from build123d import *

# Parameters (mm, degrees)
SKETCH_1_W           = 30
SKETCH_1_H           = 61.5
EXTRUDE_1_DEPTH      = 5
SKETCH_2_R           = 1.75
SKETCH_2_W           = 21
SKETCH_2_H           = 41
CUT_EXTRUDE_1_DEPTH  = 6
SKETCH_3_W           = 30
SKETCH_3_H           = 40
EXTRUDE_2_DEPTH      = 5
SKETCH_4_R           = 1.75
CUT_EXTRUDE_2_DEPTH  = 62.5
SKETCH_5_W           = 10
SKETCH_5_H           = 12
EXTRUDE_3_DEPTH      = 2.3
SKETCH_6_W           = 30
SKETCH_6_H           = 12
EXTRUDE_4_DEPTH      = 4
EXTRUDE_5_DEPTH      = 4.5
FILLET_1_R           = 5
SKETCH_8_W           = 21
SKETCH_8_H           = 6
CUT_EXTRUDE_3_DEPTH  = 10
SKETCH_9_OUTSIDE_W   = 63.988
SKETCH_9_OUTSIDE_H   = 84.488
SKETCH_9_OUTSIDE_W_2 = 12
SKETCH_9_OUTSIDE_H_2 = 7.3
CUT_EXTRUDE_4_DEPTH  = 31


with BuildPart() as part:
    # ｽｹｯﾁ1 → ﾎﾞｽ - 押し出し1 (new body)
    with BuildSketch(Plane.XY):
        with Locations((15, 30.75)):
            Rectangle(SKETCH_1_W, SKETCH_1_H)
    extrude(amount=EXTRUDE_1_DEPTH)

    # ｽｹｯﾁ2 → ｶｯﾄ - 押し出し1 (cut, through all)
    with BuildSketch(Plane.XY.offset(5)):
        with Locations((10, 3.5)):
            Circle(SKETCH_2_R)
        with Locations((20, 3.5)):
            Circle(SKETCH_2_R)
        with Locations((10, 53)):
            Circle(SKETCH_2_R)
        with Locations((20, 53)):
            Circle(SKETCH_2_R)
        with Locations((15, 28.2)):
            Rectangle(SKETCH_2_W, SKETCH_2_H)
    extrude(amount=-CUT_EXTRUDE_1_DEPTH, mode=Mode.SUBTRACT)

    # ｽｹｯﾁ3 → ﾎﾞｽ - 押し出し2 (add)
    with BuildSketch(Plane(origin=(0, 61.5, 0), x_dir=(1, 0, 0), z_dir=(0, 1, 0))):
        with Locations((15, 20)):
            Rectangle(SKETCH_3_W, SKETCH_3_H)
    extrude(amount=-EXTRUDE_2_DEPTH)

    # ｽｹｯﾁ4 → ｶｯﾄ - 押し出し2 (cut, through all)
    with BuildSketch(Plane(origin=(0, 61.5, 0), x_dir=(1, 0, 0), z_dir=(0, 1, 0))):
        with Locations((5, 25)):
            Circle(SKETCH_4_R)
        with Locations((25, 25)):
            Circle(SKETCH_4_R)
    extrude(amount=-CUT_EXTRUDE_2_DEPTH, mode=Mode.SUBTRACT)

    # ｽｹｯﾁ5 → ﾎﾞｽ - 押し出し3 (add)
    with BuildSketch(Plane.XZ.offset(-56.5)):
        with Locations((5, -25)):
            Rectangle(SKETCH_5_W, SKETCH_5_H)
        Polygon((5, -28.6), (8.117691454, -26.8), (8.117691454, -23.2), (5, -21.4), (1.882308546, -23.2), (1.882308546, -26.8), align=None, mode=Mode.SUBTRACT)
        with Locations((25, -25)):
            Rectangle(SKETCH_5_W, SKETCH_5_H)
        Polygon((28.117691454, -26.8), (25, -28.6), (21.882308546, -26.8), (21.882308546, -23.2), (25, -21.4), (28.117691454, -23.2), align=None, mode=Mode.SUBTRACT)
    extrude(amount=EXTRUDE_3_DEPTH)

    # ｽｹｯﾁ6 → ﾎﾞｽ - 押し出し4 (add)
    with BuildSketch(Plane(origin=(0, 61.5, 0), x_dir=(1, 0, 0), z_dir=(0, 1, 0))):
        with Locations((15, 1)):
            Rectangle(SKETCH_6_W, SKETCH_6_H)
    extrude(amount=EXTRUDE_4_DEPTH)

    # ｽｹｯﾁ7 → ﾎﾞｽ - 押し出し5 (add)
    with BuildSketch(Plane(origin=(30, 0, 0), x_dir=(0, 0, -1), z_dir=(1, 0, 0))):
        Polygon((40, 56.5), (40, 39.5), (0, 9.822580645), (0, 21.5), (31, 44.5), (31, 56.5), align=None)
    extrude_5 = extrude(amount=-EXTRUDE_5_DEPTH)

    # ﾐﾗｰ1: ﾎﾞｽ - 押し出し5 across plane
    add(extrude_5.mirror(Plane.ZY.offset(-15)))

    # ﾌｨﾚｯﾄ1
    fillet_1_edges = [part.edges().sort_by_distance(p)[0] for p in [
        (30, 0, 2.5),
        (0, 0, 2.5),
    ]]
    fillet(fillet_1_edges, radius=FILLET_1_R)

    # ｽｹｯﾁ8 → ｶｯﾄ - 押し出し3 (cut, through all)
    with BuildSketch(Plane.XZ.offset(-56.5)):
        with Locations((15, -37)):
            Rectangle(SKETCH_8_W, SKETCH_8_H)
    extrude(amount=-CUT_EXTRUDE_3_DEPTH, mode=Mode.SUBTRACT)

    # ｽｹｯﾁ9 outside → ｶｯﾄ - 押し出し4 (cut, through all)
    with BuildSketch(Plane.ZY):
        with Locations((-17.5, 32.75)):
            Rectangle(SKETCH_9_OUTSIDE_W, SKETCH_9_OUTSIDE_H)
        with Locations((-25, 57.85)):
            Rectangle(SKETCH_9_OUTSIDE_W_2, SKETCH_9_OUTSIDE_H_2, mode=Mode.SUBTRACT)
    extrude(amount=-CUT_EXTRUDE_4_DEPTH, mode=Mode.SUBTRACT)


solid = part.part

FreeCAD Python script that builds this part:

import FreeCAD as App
import Part
import Sketcher

V = App.Vector
Q = App.Units.Quantity


def edges_at(feature, points):
    """Names of the edges that pass closest to the given points."""
    edges = feature.Shape.Edges
    near = lambda p: min(range(len(edges)), key=lambda i: edges[i].distToShape(Part.Vertex(*p))[0])
    return sorted({f"Edge{near(p) + 1}" for p in points})


def add_polygon(sketch, points):
    """Adds a closed chain of lines whose ends are joined by coincident constraints."""
    first, n = sketch.GeometryCount, len(points)
    for a, b in zip(points, points[1:] + points[:1]):
        sketch.addGeometry(Part.LineSegment(App.Vector(*a, 0), App.Vector(*b, 0)), False)
    for i in range(n):
        sketch.addConstraint(Sketcher.Constraint("Coincident", first + i, 2, first + (i + 1) % n, 1))

doc = App.newDocument("Part")
params = doc.addObject("Spreadsheet::Sheet", "Params")
for row, (alias, value) in enumerate([
    ("sketch1_width", "30 mm"),
    ("sketch1_height", "61.5 mm"),
    ("pad1_length", "5 mm"),
    ("sketch2_diameter", "3.5 mm"),
    ("sketch2_width", "21 mm"),
    ("sketch2_height", "41 mm"),
    ("sketch3_width", "30 mm"),
    ("sketch3_height", "40 mm"),
    ("pad2_length", "5 mm"),
    ("sketch4_diameter", "3.5 mm"),
    ("sketch5_width", "10 mm"),
    ("sketch5_height", "12 mm"),
    ("sketch5_height2", "3.6 mm"),
    ("sketch5_length", "3.6 mm"),
    ("pad3_length", "2.3 mm"),
    ("sketch6_width", "30 mm"),
    ("sketch6_height", "12 mm"),
    ("pad4_length", "4 mm"),
    ("sketch7_width", "17 mm"),
    ("sketch7_width2", "12 mm"),
    ("sketch7_height", "9 mm"),
    ("pad5_length", "4.5 mm"),
    ("fillet_radius", "5 mm"),
    ("sketch8_width", "21 mm"),
    ("sketch8_height", "6 mm"),
    ("sketch9_height", "12 mm"),
    ("sketch9_width", "7.3 mm"),
], start=1):
    params.set(f"A{row}", alias)
    params.set(f"B{row}", "=" + value)
    params.setAlias(f"B{row}", alias)

body = doc.addObject("PartDesign::Body", "Body")

# Sketch on XY plane
sketch1 = body.newObject("Sketcher::SketchObject", "Sketch")
sketch1.AttachmentSupport = (doc.getObject("XY_Plane"), [""])
sketch1.MapMode = "FlatFace"
add_polygon(sketch1, [(0, 62), (0, 0), (30, 0), (30, 62)])  # lines 0-3
sketch1.addConstraint(Sketcher.Constraint("Vertical", 0))
sketch1.addConstraint(Sketcher.Constraint("Horizontal", 1))
sketch1.addConstraint(Sketcher.Constraint("Vertical", 2))
sketch1.addConstraint(Sketcher.Constraint("Horizontal", 3))
sketch1.addConstraint(Sketcher.Constraint("Coincident", 0, 2, -1, 1))
sketch1.addConstraint(Sketcher.Constraint("DistanceX", 1, 1, 1, 2, Q("30 mm")))
sketch1.addConstraint(Sketcher.Constraint("DistanceY", 0, 2, 0, 1, Q("61.5 mm")))
sketch1.setExpression("Constraints[9]", "Params.sketch1_width")
sketch1.setExpression("Constraints[10]", "Params.sketch1_height")
pad1 = body.newObject("PartDesign::Pad", "Pad")
pad1.Profile = sketch1
pad1.setExpression("Length", "Params.pad1_length")

# Sketch on XY plane
sketch2 = body.newObject("Sketcher::SketchObject", "Sketch001")
sketch2.AttachmentSupport = (doc.getObject("XY_Plane"), [""])
sketch2.MapMode = "FlatFace"
sketch2.AttachmentOffset = App.Placement(V(0, 0, 5), App.Rotation())
sketch2.addGeometry(Part.Circle(V(10, 3.5, 0), V(0, 0, 1), 1.8), False)  # 0
sketch2.addGeometry(Part.Circle(V(20, 3.5, 0), V(0, 0, 1), 1.8), False)  # 1
sketch2.addGeometry(Part.Circle(V(10, 53, 0), V(0, 0, 1), 1.8), False)  # 2
sketch2.addGeometry(Part.Circle(V(20, 53, 0), V(0, 0, 1), 1.8), False)  # 3
add_polygon(sketch2, [(4.5, 48.7), (4.5, 7.7), (25.5, 7.7), (25.5, 48.7)])  # lines 4-7
sketch2.addConstraint(Sketcher.Constraint("Vertical", 4))
sketch2.addConstraint(Sketcher.Constraint("Horizontal", 5))
sketch2.addConstraint(Sketcher.Constraint("Vertical", 6))
sketch2.addConstraint(Sketcher.Constraint("Horizontal", 7))
sketch2.addConstraint(Sketcher.Constraint("Equal", 0, 1))
sketch2.addConstraint(Sketcher.Constraint("Equal", 1, 2))
sketch2.addConstraint(Sketcher.Constraint("Equal", 2, 3))
sketch2.addConstraint(Sketcher.Constraint("Horizontal", 0, 3, 1, 3))
sketch2.addConstraint(Sketcher.Constraint("Horizontal", 2, 3, 3, 3))
sketch2.addConstraint(Sketcher.Constraint("Vertical", 0, 3, 2, 3))
sketch2.addConstraint(Sketcher.Constraint("Vertical", 1, 3, 3, 3))
sketch2.addConstraint(Sketcher.Constraint("Diameter", 0, Q("3.5 mm")))
sketch2.addConstraint(Sketcher.Constraint("DistanceX", 5, 1, 5, 2, Q("21 mm")))
sketch2.addConstraint(Sketcher.Constraint("DistanceY", 4, 2, 4, 1, Q("41 mm")))
sketch2.addConstraint(Sketcher.Constraint("DistanceX", -1, 1, 0, 3, Q("10 mm")))
sketch2.addConstraint(Sketcher.Constraint("DistanceX", -1, 1, 1, 3, Q("20 mm")))
sketch2.addConstraint(Sketcher.Constraint("DistanceY", -1, 1, 2, 3, Q("53 mm")))
sketch2.addConstraint(Sketcher.Constraint("DistanceY", -1, 1, 0, 3, Q("3.5 mm")))
sketch2.addConstraint(Sketcher.Constraint("DistanceX", -1, 1, 4, 2, Q("4.5 mm")))
sketch2.addConstraint(Sketcher.Constraint("DistanceY", -1, 1, 4, 2, Q("7.7 mm")))
sketch2.setExpression("Constraints[15]", "Params.sketch2_diameter")
sketch2.setExpression("Constraints[16]", "Params.sketch2_width")
sketch2.setExpression("Constraints[17]", "Params.sketch2_height")
pocket1 = body.newObject("PartDesign::Pocket", "Pocket")
pocket1.Profile = sketch2
pocket1.Type = "ThroughAll"

# Sketch on XZ plane
sketch3 = body.newObject("Sketcher::SketchObject", "Sketch002")
sketch3.AttachmentSupport = (doc.getObject("XZ_Plane"), [""])
sketch3.MapMode = "FlatFace"
sketch3.AttachmentOffset = App.Placement(V(0, 0, -61.5), App.Rotation())
add_polygon(sketch3, [(0, -40), (0, 0), (30, 0), (30, -40)])  # lines 0-3
sketch3.addConstraint(Sketcher.Constraint("Vertical", 0))
sketch3.addConstraint(Sketcher.Constraint("Horizontal", 1))
sketch3.addConstraint(Sketcher.Constraint("Vertical", 2))
sketch3.addConstraint(Sketcher.Constraint("Horizontal", 3))
sketch3.addConstraint(Sketcher.Constraint("Coincident", 0, 2, -1, 1))
sketch3.addConstraint(Sketcher.Constraint("DistanceX", 1, 1, 1, 2, Q("30 mm")))
sketch3.addConstraint(Sketcher.Constraint("DistanceY", 0, 1, 0, 2, Q("40 mm")))
sketch3.setExpression("Constraints[9]", "Params.sketch3_width")
sketch3.setExpression("Constraints[10]", "Params.sketch3_height")
pad2 = body.newObject("PartDesign::Pad", "Pad001")
pad2.Profile = sketch3
pad2.setExpression("Length", "Params.pad2_length")

# Sketch on XZ plane
sketch4 = body.newObject("Sketcher::SketchObject", "Sketch003")
sketch4.AttachmentSupport = (doc.getObject("XZ_Plane"), [""])
sketch4.MapMode = "FlatFace"
sketch4.AttachmentOffset = App.Placement(V(0, 0, -61.5), App.Rotation())
sketch4.addGeometry(Part.Circle(V(5, -25, 0), V(0, 0, 1), 1.8), False)
sketch4.addGeometry(Part.Circle(V(25, -25, 0), V(0, 0, 1), 1.8), False)
sketch4.addConstraint(Sketcher.Constraint("Equal", 0, 1))
sketch4.addConstraint(Sketcher.Constraint("Horizontal", 0, 3, 1, 3))
sketch4.addConstraint(Sketcher.Constraint("Diameter", 0, Q("3.5 mm")))
sketch4.addConstraint(Sketcher.Constraint("DistanceX", -1, 1, 0, 3, Q("5 mm")))
sketch4.addConstraint(Sketcher.Constraint("DistanceY", 0, 3, -1, 1, Q("25 mm")))
sketch4.addConstraint(Sketcher.Constraint("DistanceX", -1, 1, 1, 3, Q("25 mm")))
sketch4.setExpression("Constraints[2]", "Params.sketch4_diameter")
pocket2 = body.newObject("PartDesign::Pocket", "Pocket001")
pocket2.Profile = sketch4
pocket2.Type = "ThroughAll"
pocket2.Reversed = True

# Sketch on XZ plane
sketch5 = body.newObject("Sketcher::SketchObject", "Sketch004")
sketch5.AttachmentSupport = (doc.getObject("XZ_Plane"), [""])
sketch5.MapMode = "FlatFace"
sketch5.AttachmentOffset = App.Placement(V(0, 0, -56.5), App.Rotation())
add_polygon(sketch5, [(0, -19), (0, -31), (10, -31), (10, -19)])  # lines 0-3
add_polygon(sketch5, [(8.1, -26.8), (5, -28.6), (1.9, -26.8), (1.9, -23.2), (5, -21.4), (8.1, -23.2)])  # lines 4-9
add_polygon(sketch5, [(20, -19), (20, -31), (30, -31), (30, -19)])  # lines 10-13
add_polygon(sketch5, [(28.1, -23.2), (28.1, -26.8), (25, -28.6), (21.9, -26.8), (21.9, -23.2), (25, -21.4)])  # lines 14-19
sketch5.addConstraint(Sketcher.Constraint("Vertical", 0))
sketch5.addConstraint(Sketcher.Constraint("Horizontal", 1))
sketch5.addConstraint(Sketcher.Constraint("Vertical", 2))
sketch5.addConstraint(Sketcher.Constraint("Horizontal", 3))
sketch5.addConstraint(Sketcher.Constraint("Vertical", 6))
sketch5.addConstraint(Sketcher.Constraint("Vertical", 9))
sketch5.addConstraint(Sketcher.Constraint("Vertical", 10))
sketch5.addConstraint(Sketcher.Constraint("Horizontal", 11))
sketch5.addConstraint(Sketcher.Constraint("Vertical", 12))
sketch5.addConstraint(Sketcher.Constraint("Horizontal", 13))
sketch5.addConstraint(Sketcher.Constraint("Vertical", 14))
sketch5.addConstraint(Sketcher.Constraint("Vertical", 17))
sketch5.addConstraint(Sketcher.Constraint("PointOnObject", 0, 2, -2))
sketch5.addConstraint(Sketcher.Constraint("Parallel", 4, 7))
sketch5.addConstraint(Sketcher.Constraint("Parallel", 5, 8))
sketch5.addConstraint(Sketcher.Constraint("Parallel", 7, 15))
sketch5.addConstraint(Sketcher.Constraint("Parallel", 8, 16))
sketch5.addConstraint(Sketcher.Constraint("Parallel", 15, 18))
sketch5.addConstraint(Sketcher.Constraint("Parallel", 16, 19))
sketch5.addConstraint(Sketcher.Constraint("Horizontal", 6, 2, 8, 2))
sketch5.addConstraint(Sketcher.Constraint("Horizontal", 5, 2, 9, 2))
sketch5.addConstraint(Sketcher.Constraint("Horizontal", 1, 2, 10, 2))
sketch5.addConstraint(Sketcher.Constraint("Horizontal", 3, 2, 12, 2))
sketch5.addConstraint(Sketcher.Constraint("Horizontal", 9, 2, 14, 2))
sketch5.addConstraint(Sketcher.Constraint("Horizontal", 4, 2, 15, 2))
sketch5.addConstraint(Sketcher.Constraint("Horizontal", 14, 2, 16, 2))
sketch5.addConstraint(Sketcher.Constraint("Horizontal", 8, 2, 17, 2))
sketch5.addConstraint(Sketcher.Constraint("Horizontal", 7, 2, 18, 2))
sketch5.addConstraint(Sketcher.Constraint("Vertical", 4, 2, 7, 2))
sketch5.addConstraint(Sketcher.Constraint("Equal", 3, 11))
sketch5.addConstraint(Sketcher.Constraint("DistanceX", 1, 1, 1, 2, Q("10 mm")))
sketch5.addConstraint(Sketcher.Constraint("DistanceY", 0, 2, 0, 1, Q("12 mm")))
sketch5.addConstraint(Sketcher.Constraint("Angle", 4, Q("-150 deg")))
sketch5.addConstraint(Sketcher.Constraint("DistanceY", 6, 1, 6, 2, Q("3.6 mm")))
sketch5.addConstraint(Sketcher.Constraint("DistanceY", 0, 2, -1, 1, Q("31 mm")))
sketch5.addConstraint(Sketcher.Constraint("DistanceX", -1, 1, 4, 2, Q("5 mm")))
sketch5.addConstraint(Sketcher.Constraint("DistanceX", -1, 1, 10, 2, Q("20 mm")))
sketch5.addConstraint(Sketcher.Constraint("DistanceX", -1, 1, 15, 2, Q("25 mm")))
sketch5.addConstraint(Sketcher.Constraint("Distance", 4, Q("3.6 mm")))
sketch5.addConstraint(Sketcher.Constraint("DistanceY", 4, 2, -1, 1, Q("28.6 mm")))
sketch5.setExpression("Constraints[50]", "Params.sketch5_width")
sketch5.setExpression("Constraints[51]", "Params.sketch5_height")
sketch5.setExpression("Constraints[53]", "Params.sketch5_height2")
sketch5.setExpression("Constraints[58]", "Params.sketch5_length")
pad3 = body.newObject("PartDesign::Pad", "Pad002")
pad3.Profile = sketch5
pad3.setExpression("Length", "Params.pad3_length")

# Sketch on XZ plane
sketch6 = body.newObject("Sketcher::SketchObject", "Sketch005")
sketch6.AttachmentSupport = (doc.getObject("XZ_Plane"), [""])
sketch6.MapMode = "FlatFace"
sketch6.AttachmentOffset = App.Placement(V(0, 0, -61.5), App.Rotation())
add_polygon(sketch6, [(0, -7), (0, 5), (30, 5), (30, -7)])  # lines 0-3
sketch6.addConstraint(Sketcher.Constraint("Vertical", 0))
sketch6.addConstraint(Sketcher.Constraint("Horizontal", 1))
sketch6.addConstraint(Sketcher.Constraint("Vertical", 2))
sketch6.addConstraint(Sketcher.Constraint("Horizontal", 3))
sketch6.addConstraint(Sketcher.Constraint("PointOnObject", 0, 2, -2))
sketch6.addConstraint(Sketcher.Constraint("DistanceX", 1, 1, 1, 2, Q("30 mm")))
sketch6.addConstraint(Sketcher.Constraint("DistanceY", 0, 1, 0, 2, Q("12 mm")))
sketch6.addConstraint(Sketcher.Constraint("DistanceY", -1, 1, 0, 2, Q("5 mm")))
sketch6.setExpression("Constraints[9]", "Params.sketch6_width")
sketch6.setExpression("Constraints[10]", "Params.sketch6_height")
pad4 = body.newObject("PartDesign::Pad", "Pad003")
pad4.Profile = sketch6
pad4.setExpression("Length", "Params.pad4_length")
pad4.Reversed = True

# Sketch on YZ plane
sketch7 = body.newObject("Sketcher::SketchObject", "Sketch006")
sketch7.AttachmentSupport = (doc.getObject("YZ_Plane"), [""])
sketch7.MapMode = "FlatFace"
sketch7.AttachmentOffset = App.Placement(V(0, 0, 30), App.Rotation())
add_polygon(sketch7, [(40, -40), (56, -40), (56, -31), (44, -31), (22, 0), (10, 0)])  # lines 0-5
sketch7.addConstraint(Sketcher.Constraint("Horizontal", 0))
sketch7.addConstraint(Sketcher.Constraint("Vertical", 1))
sketch7.addConstraint(Sketcher.Constraint("Horizontal", 2))
sketch7.addConstraint(Sketcher.Constraint("Horizontal", 4))
sketch7.addConstraint(Sketcher.Constraint("PointOnObject", 3, 2, -1))
sketch7.addConstraint(Sketcher.Constraint("Parallel", 3, 5))
sketch7.addConstraint(Sketcher.Constraint("DistanceX", 0, 1, 0, 2, Q("17 mm")))
sketch7.addConstraint(Sketcher.Constraint("DistanceX", 2, 2, 2, 1, Q("12 mm")))
sketch7.addConstraint(Sketcher.Constraint("DistanceY", 1, 1, 1, 2, Q("9 mm")))
sketch7.addConstraint(Sketcher.Constraint("DistanceY", 0, 2, -1, 1, Q("40 mm")))
sketch7.addConstraint(Sketcher.Constraint("DistanceX", 3, 2, 2, 2, Q("23 mm")))
sketch7.addConstraint(Sketcher.Constraint("DistanceX", -1, 1, 0, 2, Q("56.5 mm")))
sketch7.setExpression("Constraints[12]", "Params.sketch7_width")
sketch7.setExpression("Constraints[13]", "Params.sketch7_width2")
sketch7.setExpression("Constraints[14]", "Params.sketch7_height")
pad5 = body.newObject("PartDesign::Pad", "Pad004")
pad5.Profile = sketch7
pad5.setExpression("Length", "Params.pad5_length")
pad5.Reversed = True
doc.recompute()

datumplane = body.newObject("PartDesign::Plane", "DatumPlane")
datumplane.AttachmentSupport = (doc.getObject("YZ_Plane"), [""])
datumplane.MapMode = "FlatFace"
datumplane.AttachmentOffset = App.Placement(V(0, 0, 15), App.Rotation())
mirrored = body.newObject("PartDesign::Mirrored", "Mirrored")
mirrored.Originals = [pad5]
mirrored.MirrorPlane = (datumplane, [""])
body.Tip = mirrored
doc.recompute()

fillet = body.newObject("PartDesign::Fillet", "Fillet")
fillet.Base = (mirrored, edges_at(mirrored, [(30, 0, 2.5), (0, 0, 2.5)]))
fillet.setExpression("Radius", "Params.fillet_radius")

# Sketch on XZ plane
sketch8 = body.newObject("Sketcher::SketchObject", "Sketch007")
sketch8.AttachmentSupport = (doc.getObject("XZ_Plane"), [""])
sketch8.MapMode = "FlatFace"
sketch8.AttachmentOffset = App.Placement(V(0, 0, -56.5), App.Rotation())
add_polygon(sketch8, [(4, -34), (4, -40), (26, -40), (26, -34)])  # lines 0-3
sketch8.addConstraint(Sketcher.Constraint("Vertical", 0))
sketch8.addConstraint(Sketcher.Constraint("Horizontal", 1))
sketch8.addConstraint(Sketcher.Constraint("Vertical", 2))
sketch8.addConstraint(Sketcher.Constraint("Horizontal", 3))
sketch8.addConstraint(Sketcher.Constraint("DistanceX", 1, 1, 1, 2, Q("21 mm")))
sketch8.addConstraint(Sketcher.Constraint("DistanceY", 0, 2, 0, 1, Q("6 mm")))
sketch8.addConstraint(Sketcher.Constraint("DistanceY", 0, 2, -1, 1, Q("40 mm")))
sketch8.addConstraint(Sketcher.Constraint("DistanceX", -1, 1, 0, 2, Q("4.5 mm")))
sketch8.setExpression("Constraints[8]", "Params.sketch8_width")
sketch8.setExpression("Constraints[9]", "Params.sketch8_height")
pocket3 = body.newObject("PartDesign::Pocket", "Pocket002")
pocket3.Profile = sketch8
pocket3.Type = "ThroughAll"

# Sketch on YZ plane
sketch9 = body.newObject("Sketcher::SketchObject", "Sketch008")
sketch9.AttachmentSupport = (doc.getObject("YZ_Plane"), [""])
sketch9.MapMode = "FlatFace"
add_polygon(sketch9, [(75, -49), (-9, -49), (-9, 14), (75, 14)])  # lines 0-3
add_polygon(sketch9, [(54, -19), (54, -31), (62, -31), (62, -19)])  # lines 4-7
sketch9.addConstraint(Sketcher.Constraint("Horizontal", 0))
sketch9.addConstraint(Sketcher.Constraint("Vertical", 1))
sketch9.addConstraint(Sketcher.Constraint("Horizontal", 2))
sketch9.addConstraint(Sketcher.Constraint("Vertical", 3))
sketch9.addConstraint(Sketcher.Constraint("Vertical", 4))
sketch9.addConstraint(Sketcher.Constraint("Horizontal", 5))
sketch9.addConstraint(Sketcher.Constraint("Vertical", 6))
sketch9.addConstraint(Sketcher.Constraint("Horizontal", 7))
sketch9.addConstraint(Sketcher.Constraint("DistanceY", 4, 2, 4, 1, Q("12 mm")))
sketch9.addConstraint(Sketcher.Constraint("DistanceX", 5, 1, 5, 2, Q("7.3 mm")))
sketch9.addConstraint(Sketcher.Constraint("DistanceY", 4, 2, -1, 1, Q("31 mm")))
sketch9.addConstraint(Sketcher.Constraint("DistanceX", -1, 1, 4, 2, Q("54.2 mm")))
sketch9.addConstraint(Sketcher.Constraint("DistanceX", 0, 2, 0, 1, Q("84.488 mm")))
sketch9.addConstraint(Sketcher.Constraint("DistanceY", 1, 1, 1, 2, Q("63.988 mm")))
sketch9.addConstraint(Sketcher.Constraint("DistanceX", 0, 2, -1, 1, Q("9.494 mm")))
sketch9.addConstraint(Sketcher.Constraint("DistanceY", 0, 2, -1, 1, Q("49.494 mm")))
sketch9.setExpression("Constraints[16]", "Params.sketch9_height")
sketch9.setExpression("Constraints[17]", "Params.sketch9_width")
pocket4 = body.newObject("PartDesign::Pocket", "Pocket003")
pocket4.Profile = sketch9
pocket4.Type = "ThroughAll"
pocket4.Reversed = True

doc.recompute()
